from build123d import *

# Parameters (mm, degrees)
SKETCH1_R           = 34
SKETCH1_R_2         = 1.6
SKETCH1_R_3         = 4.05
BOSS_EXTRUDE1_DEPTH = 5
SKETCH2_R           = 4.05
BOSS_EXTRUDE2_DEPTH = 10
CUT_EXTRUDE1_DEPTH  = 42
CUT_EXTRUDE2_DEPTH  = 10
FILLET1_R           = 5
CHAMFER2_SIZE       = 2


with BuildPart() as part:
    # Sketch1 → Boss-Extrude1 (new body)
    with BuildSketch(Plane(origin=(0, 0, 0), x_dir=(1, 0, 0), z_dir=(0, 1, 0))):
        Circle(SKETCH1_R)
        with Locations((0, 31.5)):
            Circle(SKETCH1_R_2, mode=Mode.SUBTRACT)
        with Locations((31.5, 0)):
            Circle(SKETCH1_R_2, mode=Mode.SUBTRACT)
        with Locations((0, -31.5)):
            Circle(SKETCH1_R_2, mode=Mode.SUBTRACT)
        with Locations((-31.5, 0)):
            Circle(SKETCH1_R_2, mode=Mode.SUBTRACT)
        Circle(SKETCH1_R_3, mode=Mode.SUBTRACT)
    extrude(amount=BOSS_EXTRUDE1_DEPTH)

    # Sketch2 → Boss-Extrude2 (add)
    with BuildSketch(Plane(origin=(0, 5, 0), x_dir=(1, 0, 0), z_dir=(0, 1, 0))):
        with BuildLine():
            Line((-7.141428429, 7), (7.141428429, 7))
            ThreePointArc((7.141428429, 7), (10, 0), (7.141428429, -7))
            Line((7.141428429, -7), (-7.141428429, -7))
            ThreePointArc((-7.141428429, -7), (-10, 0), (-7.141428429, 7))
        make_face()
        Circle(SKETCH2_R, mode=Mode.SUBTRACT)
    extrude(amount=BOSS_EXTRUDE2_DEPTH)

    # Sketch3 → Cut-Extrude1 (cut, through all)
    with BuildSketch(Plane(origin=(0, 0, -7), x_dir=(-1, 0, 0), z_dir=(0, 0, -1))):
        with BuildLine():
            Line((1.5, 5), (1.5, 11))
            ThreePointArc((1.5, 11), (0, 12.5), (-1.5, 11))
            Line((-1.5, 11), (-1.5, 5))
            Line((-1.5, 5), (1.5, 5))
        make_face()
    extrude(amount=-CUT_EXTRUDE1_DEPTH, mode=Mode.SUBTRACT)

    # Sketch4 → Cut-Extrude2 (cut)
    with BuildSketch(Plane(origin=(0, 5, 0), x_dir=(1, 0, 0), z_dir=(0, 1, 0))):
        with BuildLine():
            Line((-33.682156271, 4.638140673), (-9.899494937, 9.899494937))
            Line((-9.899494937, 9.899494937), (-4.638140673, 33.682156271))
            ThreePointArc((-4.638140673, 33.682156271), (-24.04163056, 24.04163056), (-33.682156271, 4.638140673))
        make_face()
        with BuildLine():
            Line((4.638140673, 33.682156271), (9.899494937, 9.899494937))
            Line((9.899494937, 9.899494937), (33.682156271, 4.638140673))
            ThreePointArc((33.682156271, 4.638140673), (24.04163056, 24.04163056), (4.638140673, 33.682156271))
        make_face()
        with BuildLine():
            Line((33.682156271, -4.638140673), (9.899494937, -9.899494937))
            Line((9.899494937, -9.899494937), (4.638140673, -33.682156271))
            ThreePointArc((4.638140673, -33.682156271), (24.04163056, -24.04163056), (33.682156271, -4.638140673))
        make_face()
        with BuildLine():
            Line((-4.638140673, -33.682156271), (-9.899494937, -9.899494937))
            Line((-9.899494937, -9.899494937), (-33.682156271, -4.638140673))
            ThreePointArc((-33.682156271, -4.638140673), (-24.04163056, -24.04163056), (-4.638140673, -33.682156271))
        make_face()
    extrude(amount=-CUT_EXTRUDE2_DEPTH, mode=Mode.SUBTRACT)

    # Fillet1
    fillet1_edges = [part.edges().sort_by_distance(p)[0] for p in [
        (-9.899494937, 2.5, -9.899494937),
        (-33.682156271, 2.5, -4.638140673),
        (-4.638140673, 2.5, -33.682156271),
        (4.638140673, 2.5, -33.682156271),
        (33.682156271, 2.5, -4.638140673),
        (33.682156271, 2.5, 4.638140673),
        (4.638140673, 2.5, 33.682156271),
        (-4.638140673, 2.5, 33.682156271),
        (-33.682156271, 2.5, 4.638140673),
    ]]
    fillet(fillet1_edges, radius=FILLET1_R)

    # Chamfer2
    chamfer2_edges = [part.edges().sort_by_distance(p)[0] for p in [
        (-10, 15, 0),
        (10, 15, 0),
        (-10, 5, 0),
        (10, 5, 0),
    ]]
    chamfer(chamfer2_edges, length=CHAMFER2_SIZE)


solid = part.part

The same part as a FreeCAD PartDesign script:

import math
import FreeCAD as App
import Part
import Sketcher


def edges_at(feature, points):
    """Names of the edges that pass closest to the given points."""
    edges = feature.Shape.Edges
    near = lambda p: min(range(len(edges)), key=lambda i: edges[i].distToShape(Part.Vertex(*p))[0])
    return sorted({f"Edge{near(p) + 1}" for p in points})

doc = App.newDocument("Part")
body = doc.addObject("PartDesign::Body", "Body")

# Sketch on XZ plane
sketch1 = doc.addObject("Sketcher::SketchObject", "Sketch")
body.addObject(sketch1)
sketch1.AttachmentSupport = (doc.XZ_Plane, [""])
sketch1.MapMode = "FlatFace"
sketch1.addGeometry(Part.Circle(App.Vector(0, 0, 0), App.Vector(0, 0, 1), 34), False)
sketch1.addGeometry(Part.Circle(App.Vector(0, 31.5, 0), App.Vector(0, 0, 1), 1.6), False)
sketch1.addGeometry(Part.Circle(App.Vector(-31.5, 0, 0), App.Vector(0, 0, 1), 1.6), False)
sketch1.addGeometry(Part.Circle(App.Vector(0, 0, 0), App.Vector(0, 0, 1), 4), False)
sketch1.addGeometry(Part.Circle(App.Vector(0, -31.5, 0), App.Vector(0, 0, 1), 1.6), False)
sketch1.addGeometry(Part.Circle(App.Vector(31.5, 0, 0), App.Vector(0, 0, 1), 1.6), False)
sketch1.addConstraint(Sketcher.Constraint("Coincident", 0, 3, -1, 1))
sketch1.addConstraint(Sketcher.Constraint("Coincident", 3, 3, -1, 1))
sketch1.addConstraint(Sketcher.Constraint("Equal", 1, 2))
sketch1.addConstraint(Sketcher.Constraint("Equal", 2, 4))
sketch1.addConstraint(Sketcher.Constraint("Equal", 4, 5))
sketch1.addConstraint(Sketcher.Constraint("Symmetric", 1, 3, 4, 3, -1, 1))
sketch1.addConstraint(Sketcher.Constraint("Symmetric", 2, 3, 5, 3, -1, 1))
sketch1.addConstraint(Sketcher.Constraint("PointOnObject", 1, 3, -2))
sketch1.addConstraint(Sketcher.Constraint("PointOnObject", 2, 3, -1))
sketch1.addConstraint(Sketcher.Constraint("Diameter", 0, 68.0))
sketch1.addConstraint(Sketcher.Constraint("Diameter", 1, 3.2))
sketch1.addConstraint(Sketcher.Constraint("Diameter", 3, 8.1))
sketch1.addConstraint(Sketcher.Constraint("DistanceY", 4, 3, 1, 3, 63.0))
sketch1.addConstraint(Sketcher.Constraint("DistanceX", 2, 3, 5, 3, 63.0))
pad1 = doc.addObject("PartDesign::Pad", "Pad")
body.addObject(pad1)
pad1.Profile = sketch1
pad1.Length = 5
pad1.Reversed = True

# Sketch on XZ plane
sketch2 = doc.addObject("Sketcher::SketchObject", "Sketch001")
body.addObject(sketch2)
sketch2.AttachmentSupport = (doc.XZ_Plane, [""])
sketch2.MapMode = "FlatFace"
sketch2.AttachmentOffset = App.Placement(App.Vector(0, 0, -5), App.Rotation())
sketch2.addGeometry(Part.LineSegment(App.Vector(7.1, -7, 0), App.Vector(-7.1, -7, 0)), False)
sketch2.addGeometry(Part.ArcOfCircle(Part.Circle(App.Vector(0, 0, 0), App.Vector(0, 0, 1), 10), math.radians(136), math.radians(224)), False)
sketch2.addGeometry(Part.LineSegment(App.Vector(-7.1, 7, 0), App.Vector(7.1, 7, 0)), False)
sketch2.addGeometry(Part.ArcOfCircle(Part.Circle(App.Vector(0, 0, 0), App.Vector(0, 0, 1), 10), math.radians(-44), math.radians(44)), False)
sketch2.addGeometry(Part.Circle(App.Vector(0, 0, 0), App.Vector(0, 0, 1), 4), False)
sketch2.addConstraint(Sketcher.Constraint("Coincident", 0, 2, 1, 2))
sketch2.addConstraint(Sketcher.Constraint("Coincident", 1, 1, 2, 1))
sketch2.addConstraint(Sketcher.Constraint("Coincident", 2, 2, 3, 2))
sketch2.addConstraint(Sketcher.Constraint("Coincident", 3, 1, 0, 1))
sketch2.addConstraint(Sketcher.Constraint("Horizontal", 0))
sketch2.addConstraint(Sketcher.Constraint("Horizontal", 2))
sketch2.addConstraint(Sketcher.Constraint("Coincident", 1, 3, -1, 1))
sketch2.addConstraint(Sketcher.Constraint("Coincident", 3, 3, -1, 1))
sketch2.addConstraint(Sketcher.Constraint("Coincident", 4, 3, -1, 1))
sketch2.addConstraint(Sketcher.Constraint("Equal", 1, 3))
sketch2.addConstraint(Sketcher.Constraint("Vertical", 0, 2, 1, 1))
sketch2.addConstraint(Sketcher.Constraint("Radius", 1, 10.0))
sketch2.addConstraint(Sketcher.Constraint("Diameter", 4, 8.1))
sketch2.addConstraint(Sketcher.Constraint("DistanceY", 0, 2, -1, 1, 7.0))
pad2 = doc.addObject("PartDesign::Pad", "Pad001")
body.addObject(pad2)
pad2.Profile = sketch2
pad2.Length = 10
pad2.Reversed = True

# Sketch on XY plane
sketch3 = doc.addObject("Sketcher::SketchObject", "Sketch002")
body.addObject(sketch3)
sketch3.AttachmentSupport = (doc.XY_Plane, [""])
sketch3.MapMode = "FlatFace"
sketch3.AttachmentOffset = App.Placement(App.Vector(0, 0, -7), App.Rotation())
sketch3.addGeometry(Part.LineSegment(App.Vector(-1.5, 5, 0), App.Vector(-1.5, 11, 0)), False)
sketch3.addGeometry(Part.ArcOfCircle(Part.Circle(App.Vector(0, 11, 0), App.Vector(0, 0, 1), 1.5), math.radians(0), math.radians(180)), False)
sketch3.addGeometry(Part.LineSegment(App.Vector(1.5, 11, 0), App.Vector(1.5, 5, 0)), False)
sketch3.addGeometry(Part.LineSegment(App.Vector(1.5, 5, 0), App.Vector(-1.5, 5, 0)), False)
sketch3.addConstraint(Sketcher.Constraint("Tangent", 0, 2, 1, 2))
sketch3.addConstraint(Sketcher.Constraint("Tangent", 1, 1, 2, 1))
sketch3.addConstraint(Sketcher.Constraint("Coincident", 2, 2, 3, 1))
sketch3.addConstraint(Sketcher.Constraint("Coincident", 3, 2, 0, 1))
sketch3.addConstraint(Sketcher.Constraint("Vertical", 0))
sketch3.addConstraint(Sketcher.Constraint("Vertical", 2))
sketch3.addConstraint(Sketcher.Constraint("Horizontal", 3))
sketch3.addConstraint(Sketcher.Constraint("PointOnObject", 1, 3, -2))
sketch3.addConstraint(Sketcher.Constraint("Radius", 1, 1.5))
sketch3.addConstraint(Sketcher.Constraint("DistanceY", 0, 1, 0, 2, 6.0))
sketch3.addConstraint(Sketcher.Constraint("DistanceY", -1, 1, 1, 3, 11.0))
pocket1 = doc.addObject("PartDesign::Pocket", "Pocket")
body.addObject(pocket1)
pocket1.Profile = sketch3
pocket1.Type = "ThroughAll"
pocket1.Reversed = True

# Sketch on XZ plane
sketch4 = doc.addObject("Sketcher::SketchObject", "Sketch003")
body.addObject(sketch4)
sketch4.AttachmentSupport = (doc.XZ_Plane, [""])
sketch4.MapMode = "FlatFace"
sketch4.AttachmentOffset = App.Placement(App.Vector(0, 0, -5), App.Rotation())
sketch4.addGeometry(Part.LineSegment(App.Vector(-34, -5, 0), App.Vector(-10, -10, 0)), False)
sketch4.addGeometry(Part.LineSegment(App.Vector(-10, -10, 0), App.Vector(-5, -34, 0)), False)
sketch4.addGeometry(Part.ArcOfCircle(Part.Circle(App.Vector(0, 0, 0), App.Vector(0, 0, 1), 34), math.radians(-172), math.radians(-98)), False)
sketch4.addGeometry(Part.LineSegment(App.Vector(5, -34, 0), App.Vector(10, -10, 0)), False)
sketch4.addGeometry(Part.LineSegment(App.Vector(10, -10, 0), App.Vector(34, -5, 0)), False)
sketch4.addGeometry(Part.ArcOfCircle(Part.Circle(App.Vector(0, 0, 0), App.Vector(0, 0, 1), 34), math.radians(-82), math.radians(-8)), False)
sketch4.addGeometry(Part.LineSegment(App.Vector(34, 5, 0), App.Vector(10, 10, 0)), False)
sketch4.addGeometry(Part.LineSegment(App.Vector(10, 10, 0), App.Vector(5, 34, 0)), False)
sketch4.addGeometry(Part.ArcOfCircle(Part.Circle(App.Vector(0, 0, 0), App.Vector(0, 0, 1), 34), math.radians(8), math.radians(82)), False)
sketch4.addGeometry(Part.LineSegment(App.Vector(-5, 34, 0), App.Vector(-10, 10, 0)), False)
sketch4.addGeometry(Part.LineSegment(App.Vector(-10, 10, 0), App.Vector(-34, 5, 0)), False)
sketch4.addGeometry(Part.ArcOfCircle(Part.Circle(App.Vector(0, 0, 0), App.Vector(0, 0, 1), 34), math.radians(98), math.radians(172)), False)
sketch4.addConstraint(Sketcher.Constraint("Coincident", 0, 2, 1, 1))
sketch4.addConstraint(Sketcher.Constraint("Coincident", 1, 2, 2, 2))
sketch4.addConstraint(Sketcher.Constraint("Coincident", 2, 1, 0, 1))
sketch4.addConstraint(Sketcher.Constraint("Coincident", 3, 2, 4, 1))
sketch4.addConstraint(Sketcher.Constraint("Coincident", 4, 2, 5, 2))
sketch4.addConstraint(Sketcher.Constraint("Coincident", 5, 1, 3, 1))
sketch4.addConstraint(Sketcher.Constraint("Coincident", 6, 2, 7, 1))
sketch4.addConstraint(Sketcher.Constraint("Coincident", 7, 2, 8, 2))
sketch4.addConstraint(Sketcher.Constraint("Coincident", 8, 1, 6, 1))
sketch4.addConstraint(Sketcher.Constraint("Coincident", 9, 2, 10, 1))
sketch4.addConstraint(Sketcher.Constraint("Coincident", 10, 2, 11, 2))
sketch4.addConstraint(Sketcher.Constraint("Coincident", 11, 1, 9, 1))
sketch4.addConstraint(Sketcher.Constraint("Coincident", 2, 3, -1, 1))
sketch4.addConstraint(Sketcher.Constraint("Coincident", 5, 3, -1, 1))
sketch4.addConstraint(Sketcher.Constraint("Coincident", 8, 3, -1, 1))
sketch4.addConstraint(Sketcher.Constraint("Coincident", 11, 3, -1, 1))
sketch4.addConstraint(Sketcher.Constraint("Equal", 2, 5))
sketch4.addConstraint(Sketcher.Constraint("Equal", 5, 8))
sketch4.addConstraint(Sketcher.Constraint("Equal", 8, 11))
sketch4.addConstraint(Sketcher.Constraint("Symmetric", 0, 2, 6, 2, -1, 1))
sketch4.addConstraint(Sketcher.Constraint("Symmetric", 3, 2, 9, 2, -1, 1))
sketch4.addConstraint(Sketcher.Constraint("Symmetric", 0, 2, 3, 2, -2))
sketch4.addConstraint(Sketcher.Constraint("Perpendicular", 0, 3))
sketch4.addConstraint(Sketcher.Constraint("Perpendicular", 1, 4))
sketch4.addConstraint(Sketcher.Constraint("Perpendicular", 3, 6))
sketch4.addConstraint(Sketcher.Constraint("Perpendicular", 4, 7))
sketch4.addConstraint(Sketcher.Constraint("Perpendicular", 6, 9))
sketch4.addConstraint(Sketcher.Constraint("Perpendicular", 7, 10))
sketch4.addConstraint(Sketcher.Constraint("Horizontal", 2, 1, 4, 2))
sketch4.addConstraint(Sketcher.Constraint("Equal", 0, 1))
sketch4.addConstraint(Sketcher.Constraint("Radius", 2, 34.0))
sketch4.addConstraint(Sketcher.Constraint("DistanceX", 1, 2, -1, 1, 4.638141))
sketch4.addConstraint(Sketcher.Constraint("DistanceY", 1, 2, 0, 2, 23.782661))
pocket2 = doc.addObject("PartDesign::Pocket", "Pocket001")
body.addObject(pocket2)
pocket2.Profile = sketch4
pocket2.Length = 10
pocket2.Reversed = True
doc.recompute()

fillet = doc.addObject("PartDesign::Fillet", "Fillet")
body.addObject(fillet)
fillet.Base = (pocket2, edges_at(pocket2, [
    (-9.899, 2.5, -9.899),
    (-33.682, 2.5, -4.638),
    (-4.638, 2.5, -33.682),
    (4.638, 2.5, -33.682),
    (33.682, 2.5, -4.638),
    (33.682, 2.5, 4.638),
    (4.638, 2.5, 33.682),
    (-4.638, 2.5, 33.682),
    (-33.682, 2.5, 4.638),
]))
fillet.Radius = 5
doc.recompute()

chamfer = doc.addObject("PartDesign::Chamfer", "Chamfer")
body.addObject(chamfer)
chamfer.Base = (fillet, edges_at(fillet, [
    (-10, 15, 0),
    (10, 15, 0),
    (-10, 5, 0),
    (10, 5, 0),
]))
chamfer.Size = 2

doc.recompute()
